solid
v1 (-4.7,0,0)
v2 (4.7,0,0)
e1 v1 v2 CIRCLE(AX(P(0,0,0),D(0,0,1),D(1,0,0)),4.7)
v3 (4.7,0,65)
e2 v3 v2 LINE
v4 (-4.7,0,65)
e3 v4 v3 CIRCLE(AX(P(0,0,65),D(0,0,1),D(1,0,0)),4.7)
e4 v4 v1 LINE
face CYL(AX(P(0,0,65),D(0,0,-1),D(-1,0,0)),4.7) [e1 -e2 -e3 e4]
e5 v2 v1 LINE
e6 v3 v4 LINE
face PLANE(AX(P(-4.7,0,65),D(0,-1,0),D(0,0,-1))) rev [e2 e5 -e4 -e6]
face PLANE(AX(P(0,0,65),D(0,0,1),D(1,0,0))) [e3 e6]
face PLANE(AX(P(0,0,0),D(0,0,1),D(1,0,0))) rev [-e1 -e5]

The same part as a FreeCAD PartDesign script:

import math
import FreeCAD as App
import Part
import Sketcher

V = App.Vector
Q = App.Units.Quantity

doc = App.newDocument("Part")
body = doc.addObject("PartDesign::Body", "Body")

sketch1 = body.newObject("Sketcher::SketchObject", "Sketch")
sketch1.AttachmentSupport = (doc.getObject("XY_Plane"), [""])
sketch1.MapMode = "FlatFace"
sketch1.addGeometry([
    Part.LineSegment(V(4.7, 0, 0), V(-4.7, 0, 0)),
    Part.ArcOfCircle(Part.Circle(V(0, 0, 0), V(0, 0, 1), 4.7), math.radians(180), math.radians(360)),
], False)
sketch1.addConstraint([
    Sketcher.Constraint("Coincident", 0, 1, 1, 2),
    Sketcher.Constraint("Coincident", 1, 1, 0, 2),
    Sketcher.Constraint("Horizontal", 0),
    Sketcher.Constraint("Coincident", 1, 3, -1, 1),
    Sketcher.Constraint("PointOnObject", 0, 1, -1),
    Sketcher.Constraint("Radius", 1, Q("4.7 mm")),
])
pad1 = body.newObject("PartDesign::Pad", "Pad")
pad1.Profile = sketch1
pad1.Length = 65

doc.recompute()
